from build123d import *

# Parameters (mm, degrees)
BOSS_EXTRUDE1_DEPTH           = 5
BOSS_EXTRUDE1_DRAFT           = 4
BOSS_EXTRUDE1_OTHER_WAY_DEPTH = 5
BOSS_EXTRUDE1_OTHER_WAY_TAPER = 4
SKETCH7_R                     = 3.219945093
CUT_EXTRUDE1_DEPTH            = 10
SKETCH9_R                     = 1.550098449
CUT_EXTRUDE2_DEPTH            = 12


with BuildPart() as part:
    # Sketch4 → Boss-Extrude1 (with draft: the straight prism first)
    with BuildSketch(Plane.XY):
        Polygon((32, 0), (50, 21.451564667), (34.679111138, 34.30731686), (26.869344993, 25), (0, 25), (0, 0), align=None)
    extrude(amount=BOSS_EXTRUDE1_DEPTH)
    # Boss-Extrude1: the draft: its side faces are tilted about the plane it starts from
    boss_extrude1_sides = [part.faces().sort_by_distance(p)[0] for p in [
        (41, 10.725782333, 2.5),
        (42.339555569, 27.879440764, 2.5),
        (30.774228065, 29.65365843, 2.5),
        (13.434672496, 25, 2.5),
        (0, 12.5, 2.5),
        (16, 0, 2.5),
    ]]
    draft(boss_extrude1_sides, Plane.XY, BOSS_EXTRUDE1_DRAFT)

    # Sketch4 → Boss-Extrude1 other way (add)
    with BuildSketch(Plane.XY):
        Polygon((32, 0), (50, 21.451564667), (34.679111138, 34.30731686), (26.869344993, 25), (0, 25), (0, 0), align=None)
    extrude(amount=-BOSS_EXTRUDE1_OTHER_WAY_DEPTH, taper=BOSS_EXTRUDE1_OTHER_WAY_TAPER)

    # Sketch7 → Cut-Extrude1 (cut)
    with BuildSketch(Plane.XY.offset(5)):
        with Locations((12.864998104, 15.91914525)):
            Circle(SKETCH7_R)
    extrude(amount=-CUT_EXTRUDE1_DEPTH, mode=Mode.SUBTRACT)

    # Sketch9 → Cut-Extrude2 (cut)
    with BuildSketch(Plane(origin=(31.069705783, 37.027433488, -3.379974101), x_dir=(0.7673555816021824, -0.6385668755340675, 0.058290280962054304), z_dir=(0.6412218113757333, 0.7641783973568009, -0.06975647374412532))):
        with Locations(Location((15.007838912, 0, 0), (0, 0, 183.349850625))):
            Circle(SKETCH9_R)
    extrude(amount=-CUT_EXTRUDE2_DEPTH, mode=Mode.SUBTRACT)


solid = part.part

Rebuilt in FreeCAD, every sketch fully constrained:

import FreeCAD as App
import Part
import Sketcher
from FreeCAD import Vector
Q = App.Units.Quantity


def faces_at(feature, points):
    """Names of the faces that lie closest to the given points."""
    faces = feature.Shape.Faces
    near = lambda p: min(range(len(faces)), key=lambda i: faces[i].distToShape(Part.Vertex(*p))[0])
    return sorted({f"Face{near(p) + 1}" for p in points})


def add_polygon(sketch, points):
    """Adds a closed chain of lines whose ends are joined by coincident constraints."""
    first, n = sketch.GeometryCount, len(points)
    for a, b in zip(points, points[1:] + points[:1]):
        sketch.addGeometry(Part.LineSegment(App.Vector(*a, 0), App.Vector(*b, 0)), False)
    for i in range(n):
        sketch.addConstraint(Sketcher.Constraint("Coincident", first + i, 2, first + (i + 1) % n, 1))

doc = App.newDocument("Part")
body = doc.addObject("PartDesign::Body", "Body")

# Sketch on XY plane
sketch1 = doc.addObject("Sketcher::SketchObject", "Sketch")
body.addObject(sketch1)
sketch1.AttachmentSupport = (doc.XY_Plane, [""])
sketch1.MapMode = "FlatFace"
add_polygon(sketch1, [(32, 0), (50, 21.451565), (34.679111, 34.307317), (26.869345, 25), (0, 25), (0, 0)])  # lines 0-5
sketch1.addConstraint([
    Sketcher.Constraint("Horizontal", 3),
    Sketcher.Constraint("Vertical", 4),
    Sketcher.Constraint("Horizontal", 5),
    Sketcher.Constraint("Coincident", 4, 2, -1, 1),
    Sketcher.Constraint("Perpendicular", 0, 1),
    Sketcher.Constraint("Perpendicular", 1, 2),
    Sketcher.Constraint("DistanceX", 5, 1, 5, 2, 32.0),
    Sketcher.Constraint("DistanceY", 4, 2, 4, 1, 25.0),
    Sketcher.Constraint("Angle", 0, Q("50 deg")),
    Sketcher.Constraint("Distance", 1, 20.0),
    Sketcher.Constraint("DistanceX", -1, 1, 0, 2, 50.0),
])
pad1 = doc.addObject("PartDesign::Pad", "Pad")
body.addObject(pad1)
pad1.Profile = sketch1
pad1.Length = 5
doc.recompute()

draft = doc.addObject("PartDesign::Draft", "Draft")
body.addObject(draft)
draft.Base = (pad1, faces_at(pad1, [
    (41, 10.726, 2.5),
    (42.34, 27.879, 2.5),
    (30.774, 29.654, 2.5),
    (13.435, 25, 2.5),
    (0, 12.5, 2.5),
    (16, 0, 2.5),
]))
draft.NeutralPlane = (doc.XY_Plane, [""])
draft.Angle = 4
draft.Reversed = False

# Sketch on XY plane
sketch2 = doc.addObject("Sketcher::SketchObject", "Sketch001")
body.addObject(sketch2)
sketch2.AttachmentSupport = (doc.XY_Plane, [""])
sketch2.MapMode = "FlatFace"
add_polygon(sketch2, [(32, 0), (50, 21.451565), (34.679111, 34.307317), (26.869345, 25), (0, 25), (0, 0)])  # lines 0-5
sketch2.addConstraint([
    Sketcher.Constraint("Horizontal", 3),
    Sketcher.Constraint("Vertical", 4),
    Sketcher.Constraint("Horizontal", 5),
    Sketcher.Constraint("Coincident", 4, 2, -1, 1),
    Sketcher.Constraint("Perpendicular", 0, 1),
    Sketcher.Constraint("Perpendicular", 1, 2),
    Sketcher.Constraint("DistanceX", 5, 1, 5, 2, 32.0),
    Sketcher.Constraint("DistanceY", 4, 2, 4, 1, 25.0),
    Sketcher.Constraint("Angle", 0, Q("50 deg")),
    Sketcher.Constraint("Distance", 1, 20.0),
    Sketcher.Constraint("DistanceX", -1, 1, 0, 2, 50.0),
])
pad2 = doc.addObject("PartDesign::Pad", "Pad001")
body.addObject(pad2)
pad2.Profile = sketch2
pad2.Length = 5
pad2.Reversed = True
pad2.TaperAngle = -4

# Sketch on XY plane
sketch3 = doc.addObject("Sketcher::SketchObject", "Sketch002")
body.addObject(sketch3)
sketch3.AttachmentSupport = (doc.XY_Plane, [""])
sketch3.MapMode = "FlatFace"
sketch3.AttachmentOffset = App.Placement(Vector(0, 0, 5), App.Rotation())
sketch3.addGeometry(Part.Circle(Vector(12.864998, 15.919145, 0), Vector(0, 0, 1), 3.219945), False)
sketch3.addConstraint([
    Sketcher.Constraint("Diameter", 0, 6.43989),
    Sketcher.Constraint("DistanceX", -1, 1, 0, 3, 12.864998),
    Sketcher.Constraint("DistanceY", -1, 1, 0, 3, 15.919145),
])
pocket1 = doc.addObject("PartDesign::Pocket", "Pocket")
body.addObject(pocket1)
pocket1.Profile = sketch3
pocket1.Length = 10

# Sketch on an angled plane
sketch4 = doc.addObject("Sketcher::SketchObject", "Sketch003")
body.addObject(sketch4)
sketch4.Placement = App.Placement(Vector(31.069706, 37.027433, -3.379974), App.Rotation(Vector(0.767355582, -0.638566876, 0.058290281), Vector(0, -0.090905019, -0.995859567), Vector(0.641221811, 0.764178397, -0.069756474), "ZXY"))
sketch4.addGeometry(Part.Circle(Vector(15.007839, 0, 0), Vector(0, 0, 1), 1.550098), False)
sketch4.addConstraint([
    Sketcher.Constraint("PointOnObject", 0, 3, -1),
    Sketcher.Constraint("Diameter", 0, 3.100197),
    Sketcher.Constraint("DistanceX", -1, 1, 0, 3, 15.007839),
])
pocket2 = doc.addObject("PartDesign::Pocket", "Pocket001")
body.addObject(pocket2)
pocket2.Profile = sketch4
pocket2.Length = 12

doc.recompute()
